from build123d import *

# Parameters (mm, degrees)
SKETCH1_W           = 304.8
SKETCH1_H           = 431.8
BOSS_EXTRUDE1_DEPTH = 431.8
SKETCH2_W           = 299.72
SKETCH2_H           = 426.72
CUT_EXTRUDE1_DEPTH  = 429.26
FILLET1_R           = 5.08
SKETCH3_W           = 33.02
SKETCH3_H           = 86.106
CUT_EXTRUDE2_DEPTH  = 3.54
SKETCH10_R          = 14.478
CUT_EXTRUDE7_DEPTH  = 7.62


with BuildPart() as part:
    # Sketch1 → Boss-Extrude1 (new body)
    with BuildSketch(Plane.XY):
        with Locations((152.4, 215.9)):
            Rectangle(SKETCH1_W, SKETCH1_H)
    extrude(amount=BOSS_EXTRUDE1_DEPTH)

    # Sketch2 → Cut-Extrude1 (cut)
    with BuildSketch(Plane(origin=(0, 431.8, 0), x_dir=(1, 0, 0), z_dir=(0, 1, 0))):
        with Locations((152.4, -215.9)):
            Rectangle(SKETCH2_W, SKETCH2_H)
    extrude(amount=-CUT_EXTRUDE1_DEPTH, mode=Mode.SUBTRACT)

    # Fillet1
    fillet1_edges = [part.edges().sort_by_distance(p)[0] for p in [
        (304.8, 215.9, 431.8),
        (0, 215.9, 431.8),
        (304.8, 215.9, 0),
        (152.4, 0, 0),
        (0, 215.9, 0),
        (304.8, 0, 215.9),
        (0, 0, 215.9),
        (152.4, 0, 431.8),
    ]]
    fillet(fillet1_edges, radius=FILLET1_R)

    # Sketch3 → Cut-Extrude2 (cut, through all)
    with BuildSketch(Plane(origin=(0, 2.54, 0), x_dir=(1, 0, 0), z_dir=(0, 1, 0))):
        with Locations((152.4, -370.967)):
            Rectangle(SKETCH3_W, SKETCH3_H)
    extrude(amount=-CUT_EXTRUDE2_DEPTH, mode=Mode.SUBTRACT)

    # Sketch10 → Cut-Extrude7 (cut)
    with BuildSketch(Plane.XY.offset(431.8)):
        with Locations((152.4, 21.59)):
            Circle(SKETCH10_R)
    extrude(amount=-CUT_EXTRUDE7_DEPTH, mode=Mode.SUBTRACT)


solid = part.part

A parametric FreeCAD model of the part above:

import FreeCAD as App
import Part
import Sketcher
Q = App.Units.Quantity


def edges_at(feature, points):
    """Names of the edges that pass closest to the given points."""
    edges = feature.Shape.Edges
    near = lambda p: min(range(len(edges)), key=lambda i: edges[i].distToShape(Part.Vertex(*p))[0])
    return sorted({f"Edge{near(p) + 1}" for p in points})


def add_polygon(sketch, points):
    """Adds a closed chain of lines whose ends are joined by coincident constraints."""
    first, n = sketch.GeometryCount, len(points)
    for a, b in zip(points, points[1:] + points[:1]):
        sketch.addGeometry(Part.LineSegment(App.Vector(*a, 0), App.Vector(*b, 0)), False)
    for i in range(n):
        sketch.addConstraint(Sketcher.Constraint("Coincident", first + i, 2, first + (i + 1) % n, 1))

doc = App.newDocument("Part")
body = doc.addObject("PartDesign::Body", "Body")

# Sketch on XY plane
sketch1 = doc.addObject("Sketcher::SketchObject", "Sketch")
body.addObject(sketch1)
sketch1.AttachmentSupport = (doc.XY_Plane, [""])
sketch1.MapMode = "FlatFace"
add_polygon(sketch1, [(0, 432), (0, 0), (305, 0), (305, 432)])  # lines 0-3
sketch1.addConstraint([
    Sketcher.Constraint("Vertical", 0),
    Sketcher.Constraint("Horizontal", 1),
    Sketcher.Constraint("Vertical", 2),
    Sketcher.Constraint("Horizontal", 3),
    Sketcher.Constraint("Coincident", 0, 2, -1, 1),
    Sketcher.Constraint("DistanceX", 1, 1, 1, 2, Q("12 in")),
    Sketcher.Constraint("DistanceY", 0, 2, 0, 1, Q("17 in")),
])
pad1 = doc.addObject("PartDesign::Pad", "Pad")
body.addObject(pad1)
pad1.Profile = sketch1
pad1.Length = Q("17 in")

# Sketch on XZ plane
sketch2 = doc.addObject("Sketcher::SketchObject", "Sketch001")
body.addObject(sketch2)
sketch2.AttachmentSupport = (doc.XZ_Plane, [""])
sketch2.MapMode = "FlatFace"
sketch2.AttachmentOffset = App.Placement(App.Vector(0, 0, -17 * 25.4), App.Rotation())
add_polygon(sketch2, [(3, 3), (3, 429), (302, 429), (302, 3)])  # lines 0-3
sketch2.addConstraint([
    Sketcher.Constraint("Vertical", 0),
    Sketcher.Constraint("Horizontal", 1),
    Sketcher.Constraint("Vertical", 2),
    Sketcher.Constraint("Horizontal", 3),
    Sketcher.Constraint("DistanceX", 1, 1, 1, 2, Q("11.8 in")),
    Sketcher.Constraint("DistanceY", 0, 1, 0, 2, Q("16.8 in")),
    Sketcher.Constraint("DistanceX", -1, 1, 0, 2, Q("0.1 in")),
    Sketcher.Constraint("DistanceY", -1, 1, 0, 2, Q("16.9 in")),
])
pocket1 = doc.addObject("PartDesign::Pocket", "Pocket")
body.addObject(pocket1)
pocket1.Profile = sketch2
pocket1.Length = Q("16.9 in")
pocket1.Reversed = True
doc.recompute()

fillet = doc.addObject("PartDesign::Fillet", "Fillet")
body.addObject(fillet)
fillet.Base = (pocket1, edges_at(pocket1, [
    (304.8, 215.9, 431.8),
    (0, 215.9, 431.8),
    (304.8, 215.9, 0),
    (152.4, 0, 0),
    (0, 215.9, 0),
    (304.8, 0, 215.9),
    (0, 0, 215.9),
    (152.4, 0, 431.8),
]))
fillet.Radius = Q("0.2 in")

# Sketch on XZ plane
sketch3 = doc.addObject("Sketcher::SketchObject", "Sketch002")
body.addObject(sketch3)
sketch3.AttachmentSupport = (doc.XZ_Plane, [""])
sketch3.MapMode = "FlatFace"
sketch3.AttachmentOffset = App.Placement(App.Vector(0, 0, -0.1 * 25.4), App.Rotation())
add_polygon(sketch3, [(136, 328), (136, 414), (169, 414), (169, 328)])  # lines 0-3
sketch3.addConstraint([
    Sketcher.Constraint("Vertical", 0),
    Sketcher.Constraint("Horizontal", 1),
    Sketcher.Constraint("Vertical", 2),
    Sketcher.Constraint("Horizontal", 3),
    Sketcher.Constraint("DistanceX", 1, 1, 1, 2, Q("1.3 in")),
    Sketcher.Constraint("DistanceY", 0, 1, 0, 2, Q("3.39 in")),
    Sketcher.Constraint("DistanceY", -1, 1, 0, 2, Q("16.3 in")),
    Sketcher.Constraint("DistanceX", -1, 1, 0, 2, Q("5.35 in")),
])
pocket2 = doc.addObject("PartDesign::Pocket", "Pocket001")
body.addObject(pocket2)
pocket2.Profile = sketch3
pocket2.Type = "ThroughAll"
pocket2.Reversed = True

# Sketch on XY plane
sketch4 = doc.addObject("Sketcher::SketchObject", "Sketch003")
body.addObject(sketch4)
sketch4.AttachmentSupport = (doc.XY_Plane, [""])
sketch4.MapMode = "FlatFace"
sketch4.AttachmentOffset = App.Placement(App.Vector(0, 0, 17 * 25.4), App.Rotation())
sketch4.addGeometry(Part.Circle(App.Vector(152, 22, 0), App.Vector(0, 0, 1), 14), False)
sketch4.addConstraint([
    Sketcher.Constraint("Diameter", 0, Q("1.14 in")),
    Sketcher.Constraint("DistanceX", -1, 1, 0, 3, Q("6 in")),
    Sketcher.Constraint("DistanceY", -1, 1, 0, 3, Q("0.85 in")),
])
pocket3 = doc.addObject("PartDesign::Pocket", "Pocket002")
body.addObject(pocket3)
pocket3.Profile = sketch4
pocket3.Length = Q("0.3 in")

doc.recompute()
